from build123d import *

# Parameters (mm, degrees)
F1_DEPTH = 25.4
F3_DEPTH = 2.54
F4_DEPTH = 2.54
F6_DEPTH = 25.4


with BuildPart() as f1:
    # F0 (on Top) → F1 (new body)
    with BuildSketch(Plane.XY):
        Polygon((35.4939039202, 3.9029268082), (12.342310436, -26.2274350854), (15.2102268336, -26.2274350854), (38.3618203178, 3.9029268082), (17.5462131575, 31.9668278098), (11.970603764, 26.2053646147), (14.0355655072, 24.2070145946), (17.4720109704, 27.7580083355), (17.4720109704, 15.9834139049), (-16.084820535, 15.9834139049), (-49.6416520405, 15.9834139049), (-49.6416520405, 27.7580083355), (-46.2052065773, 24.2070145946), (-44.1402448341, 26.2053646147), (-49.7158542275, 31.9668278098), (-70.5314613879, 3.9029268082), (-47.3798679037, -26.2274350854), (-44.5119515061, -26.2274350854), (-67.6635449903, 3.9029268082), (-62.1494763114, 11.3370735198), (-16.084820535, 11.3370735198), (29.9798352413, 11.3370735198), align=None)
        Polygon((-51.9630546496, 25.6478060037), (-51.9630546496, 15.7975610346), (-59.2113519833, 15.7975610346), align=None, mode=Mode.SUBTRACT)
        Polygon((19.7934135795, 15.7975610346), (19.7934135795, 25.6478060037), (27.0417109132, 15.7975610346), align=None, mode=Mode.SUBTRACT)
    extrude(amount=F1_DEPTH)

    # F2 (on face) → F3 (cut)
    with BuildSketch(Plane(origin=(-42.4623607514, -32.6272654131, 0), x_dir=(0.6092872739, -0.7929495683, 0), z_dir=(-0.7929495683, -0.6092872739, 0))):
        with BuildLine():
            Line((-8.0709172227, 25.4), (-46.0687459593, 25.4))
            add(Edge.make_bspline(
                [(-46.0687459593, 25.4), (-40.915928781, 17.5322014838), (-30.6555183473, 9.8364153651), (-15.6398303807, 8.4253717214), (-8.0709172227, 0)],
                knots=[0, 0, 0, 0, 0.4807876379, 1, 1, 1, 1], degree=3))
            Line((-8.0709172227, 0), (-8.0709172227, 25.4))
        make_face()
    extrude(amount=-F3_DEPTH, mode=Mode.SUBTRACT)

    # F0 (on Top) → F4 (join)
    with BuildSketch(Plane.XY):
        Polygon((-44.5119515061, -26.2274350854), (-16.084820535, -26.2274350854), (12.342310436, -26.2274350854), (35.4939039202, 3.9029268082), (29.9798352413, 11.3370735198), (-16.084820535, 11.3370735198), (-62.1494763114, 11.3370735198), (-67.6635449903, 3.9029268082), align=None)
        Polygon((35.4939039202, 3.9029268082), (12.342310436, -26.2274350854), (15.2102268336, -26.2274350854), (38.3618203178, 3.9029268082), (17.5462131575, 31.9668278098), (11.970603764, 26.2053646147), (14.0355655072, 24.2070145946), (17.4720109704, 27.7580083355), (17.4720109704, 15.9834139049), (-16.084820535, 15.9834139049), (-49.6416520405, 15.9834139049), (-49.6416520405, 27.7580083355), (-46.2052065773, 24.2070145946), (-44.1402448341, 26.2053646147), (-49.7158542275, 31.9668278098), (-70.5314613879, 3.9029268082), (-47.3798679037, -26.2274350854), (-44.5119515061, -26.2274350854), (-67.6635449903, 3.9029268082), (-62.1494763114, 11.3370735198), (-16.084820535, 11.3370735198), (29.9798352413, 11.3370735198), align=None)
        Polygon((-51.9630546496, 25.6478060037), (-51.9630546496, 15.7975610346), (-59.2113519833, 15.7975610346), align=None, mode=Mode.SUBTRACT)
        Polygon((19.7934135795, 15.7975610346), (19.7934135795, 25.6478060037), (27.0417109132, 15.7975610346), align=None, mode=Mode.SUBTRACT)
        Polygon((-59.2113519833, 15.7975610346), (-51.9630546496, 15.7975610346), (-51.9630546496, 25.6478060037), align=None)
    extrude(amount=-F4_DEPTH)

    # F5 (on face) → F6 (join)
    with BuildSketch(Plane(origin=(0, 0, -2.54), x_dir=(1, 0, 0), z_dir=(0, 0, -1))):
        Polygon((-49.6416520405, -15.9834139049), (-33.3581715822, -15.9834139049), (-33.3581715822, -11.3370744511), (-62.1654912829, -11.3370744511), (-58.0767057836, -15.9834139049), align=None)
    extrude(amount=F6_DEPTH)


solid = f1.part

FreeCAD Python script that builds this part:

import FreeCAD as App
import Part
import Sketcher

V = App.Vector
Q = App.Units.Quantity

doc = App.newDocument("Part")
body = doc.addObject("PartDesign::Body", "Body")
body.AllowCompound = True

# Sketch on XY plane
sketch1 = body.newObject("Sketcher::SketchObject", "Sketch")
sketch1.AttachmentSupport = (doc.getObject("XY_Plane"), [""])
sketch1.MapMode = "FlatFace"
sketch1.addGeometry([
    Part.LineSegment(V(35.5, 3.9, 0), V(12.3, -26.2, 0)),  # 0
    Part.LineSegment(V(12.3, -26.2, 0), V(15.2, -26.2, 0)),  # 1
    Part.LineSegment(V(15.2, -26.2, 0), V(38.4, 3.9, 0)),  # 2
    Part.LineSegment(V(38.4, 3.9, 0), V(17.5, 32, 0)),  # 3
    Part.LineSegment(V(17.5, 32, 0), V(12, 26.2, 0)),  # 4
    Part.LineSegment(V(12, 26.2, 0), V(14, 24.2, 0)),  # 5
    Part.LineSegment(V(14, 24.2, 0), V(17.5, 27.8, 0)),  # 6
    Part.LineSegment(V(17.5, 27.8, 0), V(17.5, 16, 0)),  # 7
    Part.LineSegment(V(17.5, 16, 0), V(-49.6, 16, 0)),  # 8
    Part.LineSegment(V(-49.6, 16, 0), V(-49.6, 27.8, 0)),  # 9
    Part.LineSegment(V(-49.6, 27.8, 0), V(-46.2, 24.2, 0)),  # 10
    Part.LineSegment(V(-46.2, 24.2, 0), V(-44.1, 26.2, 0)),  # 11
    Part.LineSegment(V(-44.1, 26.2, 0), V(-49.7, 32, 0)),  # 12
    Part.LineSegment(V(-49.7, 32, 0), V(-70.5, 3.9, 0)),  # 13
    Part.LineSegment(V(-70.5, 3.9, 0), V(-47.4, -26.2, 0)),  # 14
    Part.LineSegment(V(-47.4, -26.2, 0), V(-44.5, -26.2, 0)),  # 15
    Part.LineSegment(V(-44.5, -26.2, 0), V(-67.7, 3.9, 0)),  # 16
    Part.LineSegment(V(-67.7, 3.9, 0), V(-62.1, 11.3, 0)),  # 17
    Part.LineSegment(V(-62.1, 11.3, 0), V(30, 11.3, 0)),  # 18
    Part.LineSegment(V(30, 11.3, 0), V(35.5, 3.9, 0)),  # 19
    Part.LineSegment(V(27, 15.8, 0), V(19.8, 15.8, 0)),  # 20
    Part.LineSegment(V(19.8, 15.8, 0), V(19.8, 25.6, 0)),  # 21
    Part.LineSegment(V(19.8, 25.6, 0), V(27, 15.8, 0)),  # 22
    Part.LineSegment(V(-59.2, 15.8, 0), V(-52, 25.6, 0)),  # 23
    Part.LineSegment(V(-52, 25.6, 0), V(-52, 15.8, 0)),  # 24
    Part.LineSegment(V(-52, 15.8, 0), V(-59.2, 15.8, 0)),  # 25
], False)
sketch1.addConstraint([
    Sketcher.Constraint("Coincident", 0, 2, 1, 1),
    Sketcher.Constraint("Coincident", 1, 2, 2, 1),
    Sketcher.Constraint("Coincident", 2, 2, 3, 1),
    Sketcher.Constraint("Coincident", 3, 2, 4, 1),
    Sketcher.Constraint("Coincident", 4, 2, 5, 1),
    Sketcher.Constraint("Coincident", 5, 2, 6, 1),
    Sketcher.Constraint("Coincident", 6, 2, 7, 1),
    Sketcher.Constraint("Coincident", 7, 2, 8, 1),
    Sketcher.Constraint("Coincident", 8, 2, 9, 1),
    Sketcher.Constraint("Coincident", 9, 2, 10, 1),
    Sketcher.Constraint("Coincident", 10, 2, 11, 1),
    Sketcher.Constraint("Coincident", 11, 2, 12, 1),
    Sketcher.Constraint("Coincident", 12, 2, 13, 1),
    Sketcher.Constraint("Coincident", 13, 2, 14, 1),
    Sketcher.Constraint("Coincident", 14, 2, 15, 1),
    Sketcher.Constraint("Coincident", 15, 2, 16, 1),
    Sketcher.Constraint("Coincident", 16, 2, 17, 1),
    Sketcher.Constraint("Coincident", 17, 2, 18, 1),
    Sketcher.Constraint("Coincident", 18, 2, 19, 1),
    Sketcher.Constraint("Coincident", 19, 2, 0, 1),
    Sketcher.Constraint("Coincident", 20, 2, 21, 1),
    Sketcher.Constraint("Coincident", 21, 2, 22, 1),
    Sketcher.Constraint("Coincident", 22, 2, 20, 1),
    Sketcher.Constraint("Coincident", 23, 2, 24, 1),
    Sketcher.Constraint("Coincident", 24, 2, 25, 1),
    Sketcher.Constraint("Coincident", 25, 2, 23, 1),
    Sketcher.Constraint("Horizontal", 1),
    Sketcher.Constraint("Vertical", 7),
    Sketcher.Constraint("Horizontal", 8),
    Sketcher.Constraint("Vertical", 9),
    Sketcher.Constraint("Horizontal", 15),
    Sketcher.Constraint("Horizontal", 18),
    Sketcher.Constraint("Horizontal", 20),
    Sketcher.Constraint("Vertical", 21),
    Sketcher.Constraint("Vertical", 24),
    Sketcher.Constraint("Horizontal", 25),
    Sketcher.Constraint("Parallel", 0, 2),
    Sketcher.Constraint("Perpendicular", 4, 5),
    Sketcher.Constraint("Perpendicular", 5, 6),
    Sketcher.Constraint("Perpendicular", 10, 11),
    Sketcher.Constraint("Perpendicular", 11, 12),
    Sketcher.Constraint("Parallel", 14, 16),
    Sketcher.Constraint("Parallel", 13, 17),
    Sketcher.Constraint("Parallel", 3, 19),
    Sketcher.Constraint("Horizontal", 6, 2, 9, 2),
    Sketcher.Constraint("Horizontal", 5, 2, 10, 2),
    Sketcher.Constraint("Horizontal", 4, 2, 11, 2),
    Sketcher.Constraint("Horizontal", 3, 2, 12, 2),
    Sketcher.Constraint("Horizontal", 2, 2, 13, 2),
    Sketcher.Constraint("Horizontal", 1, 2, 14, 2),
    Sketcher.Constraint("Horizontal", 13, 2, 16, 2),
    Sketcher.Constraint("Horizontal", 16, 2, 19, 2),
    Sketcher.Constraint("Horizontal", 21, 2, 23, 2),
    Sketcher.Constraint("Horizontal", 22, 2, 24, 2),
    Sketcher.Constraint("Equal", 1, 15),
    Sketcher.Constraint("Equal", 20, 25),
    Sketcher.Constraint("Equal", 6, 10),
    Sketcher.Constraint("Equal", 3, 13),
    Sketcher.Constraint("Equal", 2, 14),
    Sketcher.Constraint("Distance", 4, Q("8.017598 mm")),
    Sketcher.Constraint("DistanceX", 18, 1, 18, 2, Q("92.129312 mm")),
    Sketcher.Constraint("DistanceY", 2, 2, 3, 2, Q("28.063901 mm")),
    Sketcher.Constraint("DistanceY", 0, 2, 4, 2, Q("52.4328 mm")),
    Sketcher.Constraint("DistanceY", 7, 2, 5, 2, Q("8.223601 mm")),
    Sketcher.Constraint("DistanceX", 8, 2, 15, 2, Q("5.129701 mm")),
    Sketcher.Constraint("DistanceX", 16, 2, 11, 2, Q("23.5233 mm")),
    Sketcher.Constraint("DistanceX", 3, 2, 21, 2, Q("2.2472 mm")),
    Sketcher.Constraint("DistanceX", 7, 2, 22, 2, Q("9.5697 mm")),
    Sketcher.Constraint("DistanceX", 23, 2, 12, 2, Q("2.2472 mm")),
    Sketcher.Constraint("Distance", 0, Q("37.997829 mm")),
    Sketcher.Constraint("Distance", 3, Q("34.940979 mm")),
    Sketcher.Constraint("Distance", 5, Q("2.873581 mm")),
    Sketcher.Constraint("Distance", 6, Q("4.94153 mm")),
    Sketcher.Constraint("Distance", 17, Q("9.25589 mm")),
    Sketcher.Constraint("DistanceY", 21, 1, 21, 2, Q("9.850245 mm")),
    Sketcher.Constraint("DistanceX", -1, 1, 0, 2, Q("12.34231 mm")),
    Sketcher.Constraint("DistanceY", -1, 1, 6, 2, Q("27.758008 mm")),
    Sketcher.Constraint("DistanceY", -1, 1, 20, 2, Q("15.797561 mm")),
])
pad1 = body.newObject("PartDesign::Pad", "Pad")
pad1.Profile = sketch1
pad1.Length = Q("1 in")

# Sketch on an angled plane
sketch2 = body.newObject("Sketcher::SketchObject", "Sketch001")
sketch2.Placement = App.Placement(V(-42.462361, -32.627265, 0), App.Rotation(V(0.609287274, -0.792949568, 0), V(0, 0, 1), V(-0.792949568, -0.609287274, 0), "ZXY"))
sketch2.addGeometry([
    Part.LineSegment(V(-8.070917, 25.4, 0), V(-46.068746, 25.4, 0)),
    Part.BSplineCurve([V(-46.068746, 25.4, 0), V(-40.915929, 17.532201, 0), V(-30.655518, 9.836415, 0), V(-15.63983, 8.425372, 0), V(-8.070917, 0, 0)], [4, 1, 4], [0, 0.480787638, 1], False, 3, [1, 1, 1, 1, 1], False),
    Part.LineSegment(V(-8.070917, 0, 0), V(-8.070917, 25.4, 0)),
], False)
sketch2.addConstraint([
    Sketcher.Constraint("Block", 1),
    Sketcher.Constraint("Coincident", 0, 2, 1, 1),
    Sketcher.Constraint("Coincident", 1, 2, 2, 1),
    Sketcher.Constraint("Coincident", 2, 2, 0, 1),
    Sketcher.Constraint("Horizontal", 0),
    Sketcher.Constraint("Vertical", 2),
])
pocket1 = body.newObject("PartDesign::Pocket", "Pocket")
pocket1.Profile = sketch2
pocket1.Length = Q("0.1 in")

# Sketch on XY plane
sketch3 = body.newObject("Sketcher::SketchObject", "Sketch002")
sketch3.AttachmentSupport = (doc.getObject("XY_Plane"), [""])
sketch3.MapMode = "FlatFace"
sketch3.addGeometry([
    Part.LineSegment(V(15.2, -26.2, 0), V(38.4, 3.9, 0)),  # 0
    Part.LineSegment(V(38.4, 3.9, 0), V(17.5, 32, 0)),  # 1
    Part.LineSegment(V(17.5, 32, 0), V(12, 26.2, 0)),  # 2
    Part.LineSegment(V(12, 26.2, 0), V(14, 24.2, 0)),  # 3
    Part.LineSegment(V(14, 24.2, 0), V(17.5, 27.8, 0)),  # 4
    Part.LineSegment(V(17.5, 27.8, 0), V(17.5, 16, 0)),  # 5
    Part.LineSegment(V(17.5, 16, 0), V(-49.6, 16, 0)),  # 6
    Part.LineSegment(V(-49.6, 16, 0), V(-49.6, 27.8, 0)),  # 7
    Part.LineSegment(V(-49.6, 27.8, 0), V(-46.2, 24.2, 0)),  # 8
    Part.LineSegment(V(-46.2, 24.2, 0), V(-44.1, 26.2, 0)),  # 9
    Part.LineSegment(V(-44.1, 26.2, 0), V(-49.7, 32, 0)),  # 10
    Part.LineSegment(V(-49.7, 32, 0), V(-70.5, 3.9, 0)),  # 11
    Part.LineSegment(V(-70.5, 3.9, 0), V(-47.4, -26.2, 0)),  # 12
    Part.LineSegment(V(-47.4, -26.2, 0), V(15.2, -26.2, 0)),  # 13
    Part.LineSegment(V(27, 15.8, 0), V(19.8, 15.8, 0)),  # 14
    Part.LineSegment(V(19.8, 15.8, 0), V(19.8, 25.6, 0)),  # 15
    Part.LineSegment(V(19.8, 25.6, 0), V(27, 15.8, 0)),  # 16
], False)
sketch3.addConstraint([
    Sketcher.Constraint("Coincident", 0, 2, 1, 1),
    Sketcher.Constraint("Coincident", 1, 2, 2, 1),
    Sketcher.Constraint("Coincident", 2, 2, 3, 1),
    Sketcher.Constraint("Coincident", 3, 2, 4, 1),
    Sketcher.Constraint("Coincident", 4, 2, 5, 1),
    Sketcher.Constraint("Coincident", 5, 2, 6, 1),
    Sketcher.Constraint("Coincident", 6, 2, 7, 1),
    Sketcher.Constraint("Coincident", 7, 2, 8, 1),
    Sketcher.Constraint("Coincident", 8, 2, 9, 1),
    Sketcher.Constraint("Coincident", 9, 2, 10, 1),
    Sketcher.Constraint("Coincident", 10, 2, 11, 1),
    Sketcher.Constraint("Coincident", 11, 2, 12, 1),
    Sketcher.Constraint("Coincident", 12, 2, 13, 1),
    Sketcher.Constraint("Coincident", 13, 2, 0, 1),
    Sketcher.Constraint("Coincident", 14, 2, 15, 1),
    Sketcher.Constraint("Coincident", 15, 2, 16, 1),
    Sketcher.Constraint("Coincident", 16, 2, 14, 1),
    Sketcher.Constraint("Vertical", 5),
    Sketcher.Constraint("Horizontal", 6),
    Sketcher.Constraint("Vertical", 7),
    Sketcher.Constraint("Horizontal", 13),
    Sketcher.Constraint("Horizontal", 14),
    Sketcher.Constraint("Vertical", 15),
    Sketcher.Constraint("Perpendicular", 2, 3),
    Sketcher.Constraint("Perpendicular", 3, 4),
    Sketcher.Constraint("Perpendicular", 8, 9),
    Sketcher.Constraint("Perpendicular", 9, 10),
    Sketcher.Constraint("Horizontal", 4, 2, 7, 2),
    Sketcher.Constraint("Horizontal", 3, 2, 8, 2),
    Sketcher.Constraint("Horizontal", 2, 2, 9, 2),
    Sketcher.Constraint("Horizontal", 1, 2, 10, 2),
    Sketcher.Constraint("Horizontal", 0, 2, 11, 2),
    Sketcher.Constraint("Equal", 4, 8),
    Sketcher.Constraint("Equal", 1, 11),
    Sketcher.Constraint("Equal", 0, 12),
    Sketcher.Constraint("Distance", 2, Q("8.017598 mm")),
    Sketcher.Constraint("DistanceY", 0, 2, 1, 2, Q("28.063901 mm")),
    Sketcher.Constraint("DistanceY", 5, 2, 3, 2, Q("8.223601 mm")),
    Sketcher.Constraint("DistanceY", 12, 2, 9, 2, Q("52.4328 mm")),
    Sketcher.Constraint("DistanceX", 1, 2, 14, 2, Q("2.2472 mm")),
    Sketcher.Constraint("DistanceX", 5, 2, 16, 2, Q("9.5697 mm")),
    Sketcher.Constraint("Distance", 0, Q("37.997829 mm")),
    Sketcher.Constraint("Distance", 1, Q("34.940979 mm")),
    Sketcher.Constraint("Distance", 3, Q("2.873581 mm")),
    Sketcher.Constraint("Distance", 4, Q("4.94153 mm")),
    Sketcher.Constraint("DistanceX", 6, 2, 6, 1, Q("67.113663 mm")),
    Sketcher.Constraint("DistanceX", 13, 1, 13, 2, Q("62.590095 mm")),
    Sketcher.Constraint("DistanceY", 15, 1, 15, 2, Q("9.850245 mm")),
    Sketcher.Constraint("DistanceX", -1, 1, 0, 2, Q("38.36182 mm")),
    Sketcher.Constraint("DistanceY", -1, 1, 4, 2, Q("27.758008 mm")),
    Sketcher.Constraint("DistanceY", -1, 1, 14, 2, Q("15.797561 mm")),
])
pad2 = body.newObject("PartDesign::Pad", "Pad001")
pad2.Profile = sketch3
pad2.Length = Q("0.1 in")
pad2.Reversed = True

# Sketch on XY plane
sketch4 = body.newObject("Sketcher::SketchObject", "Sketch003")
sketch4.AttachmentSupport = (doc.getObject("XY_Plane"), [""])
sketch4.MapMode = "FlatFace"
sketch4.AttachmentOffset = App.Placement(V(0, 0, -0.1 * 25.4), App.Rotation())
sketch4.addGeometry([
    Part.LineSegment(V(-33.4, 16, 0), V(-33.4, 11.3, 0)),
    Part.LineSegment(V(-33.4, 11.3, 0), V(-62.2, 11.3, 0)),
    Part.LineSegment(V(-62.2, 11.3, 0), V(-58.1, 16, 0)),
    Part.LineSegment(V(-58.1, 16, 0), V(-33.4, 16, 0)),
], False)
sketch4.addConstraint([
    Sketcher.Constraint("Coincident", 0, 2, 1, 1),
    Sketcher.Constraint("Coincident", 1, 2, 2, 1),
    Sketcher.Constraint("Coincident", 2, 2, 3, 1),
    Sketcher.Constraint("Coincident", 3, 2, 0, 1),
    Sketcher.Constraint("Vertical", 0),
    Sketcher.Constraint("Horizontal", 1),
    Sketcher.Constraint("Horizontal", 3),
    Sketcher.Constraint("DistanceX", 1, 2, 1, 1, Q("28.80732 mm")),
    Sketcher.Constraint("DistanceY", 0, 2, 0, 1, Q("4.646339 mm")),
    Sketcher.Constraint("DistanceX", 3, 1, 3, 2, Q("24.718534 mm")),
    Sketcher.Constraint("DistanceX", 0, 2, -1, 1, Q("33.358172 mm")),
    Sketcher.Constraint("DistanceY", -1, 1, 0, 2, Q("11.337074 mm")),
])
pad3 = body.newObject("PartDesign::Pad", "Pad002")
pad3.Profile = sketch4
pad3.Length = Q("1 in")
pad3.Reversed = True

doc.recompute()
